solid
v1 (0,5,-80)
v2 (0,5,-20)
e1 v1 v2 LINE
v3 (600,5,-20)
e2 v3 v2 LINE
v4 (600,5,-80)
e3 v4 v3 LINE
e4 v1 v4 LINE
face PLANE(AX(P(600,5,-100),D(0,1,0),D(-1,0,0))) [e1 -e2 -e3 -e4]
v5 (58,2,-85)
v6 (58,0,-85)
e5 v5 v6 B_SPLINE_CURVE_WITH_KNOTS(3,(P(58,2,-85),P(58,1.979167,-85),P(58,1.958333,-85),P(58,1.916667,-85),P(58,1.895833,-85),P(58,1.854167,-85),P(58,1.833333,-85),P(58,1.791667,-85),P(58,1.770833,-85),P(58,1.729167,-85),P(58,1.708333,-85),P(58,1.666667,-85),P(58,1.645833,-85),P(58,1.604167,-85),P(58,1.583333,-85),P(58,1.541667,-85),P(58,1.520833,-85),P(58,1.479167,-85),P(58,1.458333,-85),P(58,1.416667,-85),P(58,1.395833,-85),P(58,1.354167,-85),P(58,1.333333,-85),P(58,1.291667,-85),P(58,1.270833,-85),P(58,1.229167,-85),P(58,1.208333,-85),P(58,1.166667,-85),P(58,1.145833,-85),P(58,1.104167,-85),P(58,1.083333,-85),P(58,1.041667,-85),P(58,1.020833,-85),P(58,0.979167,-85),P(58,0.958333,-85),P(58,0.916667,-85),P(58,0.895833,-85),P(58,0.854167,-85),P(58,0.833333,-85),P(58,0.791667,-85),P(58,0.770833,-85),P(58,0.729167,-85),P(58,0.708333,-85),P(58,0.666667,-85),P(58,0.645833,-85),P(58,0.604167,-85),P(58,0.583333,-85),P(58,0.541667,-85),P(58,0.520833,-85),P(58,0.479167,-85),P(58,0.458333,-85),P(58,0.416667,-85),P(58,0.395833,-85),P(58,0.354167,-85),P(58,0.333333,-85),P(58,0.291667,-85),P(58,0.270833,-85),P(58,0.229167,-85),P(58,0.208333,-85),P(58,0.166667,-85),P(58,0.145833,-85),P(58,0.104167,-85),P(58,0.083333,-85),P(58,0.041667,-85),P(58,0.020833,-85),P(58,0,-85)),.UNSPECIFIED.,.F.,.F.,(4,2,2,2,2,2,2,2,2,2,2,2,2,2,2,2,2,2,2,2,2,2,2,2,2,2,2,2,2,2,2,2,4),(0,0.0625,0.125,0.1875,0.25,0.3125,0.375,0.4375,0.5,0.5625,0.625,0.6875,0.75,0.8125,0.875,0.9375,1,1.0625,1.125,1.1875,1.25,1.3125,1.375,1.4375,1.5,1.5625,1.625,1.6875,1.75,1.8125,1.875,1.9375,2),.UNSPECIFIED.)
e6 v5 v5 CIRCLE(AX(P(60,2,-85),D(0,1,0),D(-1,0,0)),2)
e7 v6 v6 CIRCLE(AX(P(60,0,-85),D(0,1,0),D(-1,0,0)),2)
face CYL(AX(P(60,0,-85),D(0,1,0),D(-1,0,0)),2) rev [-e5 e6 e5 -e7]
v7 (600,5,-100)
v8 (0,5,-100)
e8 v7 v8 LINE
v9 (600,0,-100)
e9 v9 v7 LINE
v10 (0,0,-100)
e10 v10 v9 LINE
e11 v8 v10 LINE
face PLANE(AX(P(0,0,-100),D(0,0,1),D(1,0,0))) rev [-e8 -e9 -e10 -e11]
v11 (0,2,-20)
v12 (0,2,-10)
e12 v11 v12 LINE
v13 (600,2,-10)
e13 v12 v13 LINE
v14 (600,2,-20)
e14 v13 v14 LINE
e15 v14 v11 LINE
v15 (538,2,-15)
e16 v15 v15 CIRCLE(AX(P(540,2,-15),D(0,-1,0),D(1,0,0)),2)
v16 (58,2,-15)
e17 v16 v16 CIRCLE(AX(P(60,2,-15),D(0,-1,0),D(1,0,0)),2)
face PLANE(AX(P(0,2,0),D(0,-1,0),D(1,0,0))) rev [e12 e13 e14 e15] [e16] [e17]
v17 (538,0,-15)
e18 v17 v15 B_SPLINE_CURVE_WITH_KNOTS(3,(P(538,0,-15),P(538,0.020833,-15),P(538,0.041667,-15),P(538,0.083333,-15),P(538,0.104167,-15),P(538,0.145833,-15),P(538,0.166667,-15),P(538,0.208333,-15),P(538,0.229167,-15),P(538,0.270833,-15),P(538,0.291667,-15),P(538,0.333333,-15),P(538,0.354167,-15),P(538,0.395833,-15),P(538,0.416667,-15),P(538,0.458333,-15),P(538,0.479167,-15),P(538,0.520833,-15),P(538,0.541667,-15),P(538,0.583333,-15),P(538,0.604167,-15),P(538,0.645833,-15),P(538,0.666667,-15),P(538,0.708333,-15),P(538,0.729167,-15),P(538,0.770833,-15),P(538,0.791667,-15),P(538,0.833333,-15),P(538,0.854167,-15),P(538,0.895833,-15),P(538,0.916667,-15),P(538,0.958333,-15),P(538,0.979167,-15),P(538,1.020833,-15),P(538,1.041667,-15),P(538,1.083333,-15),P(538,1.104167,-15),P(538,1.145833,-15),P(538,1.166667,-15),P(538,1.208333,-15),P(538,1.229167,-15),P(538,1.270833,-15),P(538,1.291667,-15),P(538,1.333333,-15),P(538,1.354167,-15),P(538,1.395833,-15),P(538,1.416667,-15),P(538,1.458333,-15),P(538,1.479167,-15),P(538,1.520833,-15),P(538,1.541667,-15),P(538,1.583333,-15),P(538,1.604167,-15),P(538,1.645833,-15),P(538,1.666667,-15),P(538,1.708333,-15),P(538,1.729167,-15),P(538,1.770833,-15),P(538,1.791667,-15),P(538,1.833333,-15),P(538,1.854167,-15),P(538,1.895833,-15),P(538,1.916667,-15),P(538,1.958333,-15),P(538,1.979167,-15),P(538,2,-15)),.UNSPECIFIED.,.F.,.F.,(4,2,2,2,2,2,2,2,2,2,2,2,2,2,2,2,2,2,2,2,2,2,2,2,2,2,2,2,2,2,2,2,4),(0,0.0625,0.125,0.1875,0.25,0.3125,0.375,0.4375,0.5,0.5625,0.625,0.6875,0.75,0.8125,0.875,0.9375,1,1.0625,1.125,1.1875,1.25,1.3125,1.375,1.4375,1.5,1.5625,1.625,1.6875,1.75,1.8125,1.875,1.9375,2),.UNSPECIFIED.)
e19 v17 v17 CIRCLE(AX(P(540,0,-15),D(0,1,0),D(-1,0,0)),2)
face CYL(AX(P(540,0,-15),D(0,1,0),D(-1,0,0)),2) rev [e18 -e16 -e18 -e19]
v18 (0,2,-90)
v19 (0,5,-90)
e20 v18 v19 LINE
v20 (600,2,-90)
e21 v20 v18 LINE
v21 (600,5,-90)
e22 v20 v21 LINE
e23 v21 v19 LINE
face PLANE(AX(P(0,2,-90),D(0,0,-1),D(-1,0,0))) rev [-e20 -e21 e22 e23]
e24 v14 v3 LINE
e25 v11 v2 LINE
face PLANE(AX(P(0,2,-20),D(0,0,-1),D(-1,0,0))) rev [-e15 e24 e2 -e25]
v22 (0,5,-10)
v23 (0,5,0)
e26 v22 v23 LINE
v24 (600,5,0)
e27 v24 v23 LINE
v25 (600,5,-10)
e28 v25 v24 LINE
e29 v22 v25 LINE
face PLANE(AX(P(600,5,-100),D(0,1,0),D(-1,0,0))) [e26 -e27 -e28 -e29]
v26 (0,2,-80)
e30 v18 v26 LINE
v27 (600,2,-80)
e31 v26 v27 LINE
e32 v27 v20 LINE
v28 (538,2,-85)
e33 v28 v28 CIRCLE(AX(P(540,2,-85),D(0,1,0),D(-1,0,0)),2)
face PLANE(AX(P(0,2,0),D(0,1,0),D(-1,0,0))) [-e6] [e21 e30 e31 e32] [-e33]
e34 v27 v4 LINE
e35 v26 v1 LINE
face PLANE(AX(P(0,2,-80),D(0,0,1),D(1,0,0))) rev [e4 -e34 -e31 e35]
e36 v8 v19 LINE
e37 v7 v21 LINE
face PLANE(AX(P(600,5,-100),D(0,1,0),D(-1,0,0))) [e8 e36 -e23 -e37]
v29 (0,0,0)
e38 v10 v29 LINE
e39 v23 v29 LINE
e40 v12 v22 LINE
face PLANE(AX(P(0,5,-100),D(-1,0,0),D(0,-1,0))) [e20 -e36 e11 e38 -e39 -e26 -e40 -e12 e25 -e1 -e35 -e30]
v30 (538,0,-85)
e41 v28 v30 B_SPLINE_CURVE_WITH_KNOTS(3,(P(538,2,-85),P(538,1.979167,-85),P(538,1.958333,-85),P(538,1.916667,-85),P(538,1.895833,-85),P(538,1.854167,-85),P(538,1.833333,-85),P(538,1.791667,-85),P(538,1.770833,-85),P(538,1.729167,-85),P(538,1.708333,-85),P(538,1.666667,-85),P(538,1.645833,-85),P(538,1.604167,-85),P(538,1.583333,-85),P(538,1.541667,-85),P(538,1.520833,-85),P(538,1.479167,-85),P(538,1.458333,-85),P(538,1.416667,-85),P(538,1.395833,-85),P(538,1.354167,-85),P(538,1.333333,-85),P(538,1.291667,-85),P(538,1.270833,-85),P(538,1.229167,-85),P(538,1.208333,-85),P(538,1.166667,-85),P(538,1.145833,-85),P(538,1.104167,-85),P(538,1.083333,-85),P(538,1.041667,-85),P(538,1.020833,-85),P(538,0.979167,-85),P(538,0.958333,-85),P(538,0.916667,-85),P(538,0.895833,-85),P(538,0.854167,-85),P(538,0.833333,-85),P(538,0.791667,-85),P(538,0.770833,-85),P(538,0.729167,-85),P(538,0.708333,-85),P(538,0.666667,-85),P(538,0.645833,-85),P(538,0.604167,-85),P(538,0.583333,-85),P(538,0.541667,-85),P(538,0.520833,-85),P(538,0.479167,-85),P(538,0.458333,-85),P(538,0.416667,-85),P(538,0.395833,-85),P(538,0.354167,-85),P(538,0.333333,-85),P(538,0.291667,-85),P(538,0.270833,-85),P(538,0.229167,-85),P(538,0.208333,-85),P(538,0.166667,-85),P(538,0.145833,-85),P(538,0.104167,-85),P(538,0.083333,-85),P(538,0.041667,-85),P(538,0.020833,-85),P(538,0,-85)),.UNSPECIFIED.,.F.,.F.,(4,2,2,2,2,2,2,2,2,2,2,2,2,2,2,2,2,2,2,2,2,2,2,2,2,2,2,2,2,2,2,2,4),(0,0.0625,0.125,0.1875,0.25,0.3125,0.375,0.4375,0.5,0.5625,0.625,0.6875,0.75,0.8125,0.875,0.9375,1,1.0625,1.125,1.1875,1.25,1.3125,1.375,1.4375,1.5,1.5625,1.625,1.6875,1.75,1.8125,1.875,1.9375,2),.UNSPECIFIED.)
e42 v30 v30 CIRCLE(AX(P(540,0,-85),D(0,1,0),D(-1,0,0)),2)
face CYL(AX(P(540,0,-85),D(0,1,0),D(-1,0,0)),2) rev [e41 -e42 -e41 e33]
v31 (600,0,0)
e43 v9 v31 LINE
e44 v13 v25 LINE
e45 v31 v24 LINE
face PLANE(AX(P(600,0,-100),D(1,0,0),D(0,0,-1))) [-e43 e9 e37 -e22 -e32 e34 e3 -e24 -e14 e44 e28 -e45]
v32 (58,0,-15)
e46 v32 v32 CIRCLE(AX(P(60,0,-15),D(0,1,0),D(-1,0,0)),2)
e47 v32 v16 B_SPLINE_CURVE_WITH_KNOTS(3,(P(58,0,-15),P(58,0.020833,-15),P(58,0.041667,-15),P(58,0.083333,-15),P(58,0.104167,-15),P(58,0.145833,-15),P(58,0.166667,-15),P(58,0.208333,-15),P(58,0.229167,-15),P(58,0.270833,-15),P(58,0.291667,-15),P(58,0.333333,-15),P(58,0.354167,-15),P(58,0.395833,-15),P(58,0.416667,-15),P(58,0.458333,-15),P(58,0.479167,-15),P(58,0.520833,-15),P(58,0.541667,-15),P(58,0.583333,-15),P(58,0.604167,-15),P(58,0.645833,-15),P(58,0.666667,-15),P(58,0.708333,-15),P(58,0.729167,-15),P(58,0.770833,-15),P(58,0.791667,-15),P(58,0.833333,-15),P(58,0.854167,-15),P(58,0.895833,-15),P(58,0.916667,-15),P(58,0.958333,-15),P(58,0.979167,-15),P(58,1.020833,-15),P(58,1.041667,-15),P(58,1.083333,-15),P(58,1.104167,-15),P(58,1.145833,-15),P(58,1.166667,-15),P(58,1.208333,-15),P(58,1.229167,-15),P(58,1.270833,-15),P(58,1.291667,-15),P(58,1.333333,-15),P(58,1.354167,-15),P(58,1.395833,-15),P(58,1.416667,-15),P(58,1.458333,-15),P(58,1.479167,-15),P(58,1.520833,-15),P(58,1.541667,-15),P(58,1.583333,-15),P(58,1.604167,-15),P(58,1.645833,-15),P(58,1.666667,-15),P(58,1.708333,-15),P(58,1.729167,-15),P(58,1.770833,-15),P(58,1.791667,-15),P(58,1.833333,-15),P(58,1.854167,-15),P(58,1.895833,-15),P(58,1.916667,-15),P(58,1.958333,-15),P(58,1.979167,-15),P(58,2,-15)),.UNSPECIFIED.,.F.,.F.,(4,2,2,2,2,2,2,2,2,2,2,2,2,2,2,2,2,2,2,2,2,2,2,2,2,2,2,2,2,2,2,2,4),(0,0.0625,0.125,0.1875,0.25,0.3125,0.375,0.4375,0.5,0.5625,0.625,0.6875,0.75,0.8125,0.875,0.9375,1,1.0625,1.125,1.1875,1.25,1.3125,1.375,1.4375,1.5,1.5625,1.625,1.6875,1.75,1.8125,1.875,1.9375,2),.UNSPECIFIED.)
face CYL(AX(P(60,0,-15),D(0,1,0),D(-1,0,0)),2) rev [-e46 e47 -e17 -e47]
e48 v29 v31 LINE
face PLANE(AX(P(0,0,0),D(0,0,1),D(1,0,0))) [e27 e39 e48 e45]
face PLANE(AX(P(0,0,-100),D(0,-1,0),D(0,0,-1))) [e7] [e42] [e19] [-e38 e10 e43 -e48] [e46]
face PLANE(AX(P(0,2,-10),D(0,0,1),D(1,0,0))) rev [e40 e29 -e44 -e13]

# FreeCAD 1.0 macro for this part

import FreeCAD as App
import Part
import Sketcher

V = App.Vector
Q = App.Units.Quantity

doc = App.newDocument("Part")
body = doc.addObject("PartDesign::Body", "Body")

sketch1 = body.newObject("Sketcher::SketchObject", "Sketch")
sketch1.AttachmentSupport = (doc.getObject("XY_Plane"), [""])
sketch1.MapMode = "FlatFace"
sketch1.addGeometry([
    Part.LineSegment(V(0, 5, 0), V(0, 0, 0)),
    Part.LineSegment(V(0, 0, 0), V(600, 0, 0)),
    Part.LineSegment(V(600, 0, 0), V(600, 5, 0)),
    Part.LineSegment(V(600, 5, 0), V(0, 5, 0)),
], False)
sketch1.addConstraint([
    Sketcher.Constraint("Coincident", 0, 2, 1, 1),
    Sketcher.Constraint("Coincident", 1, 2, 2, 1),
    Sketcher.Constraint("Coincident", 2, 2, 3, 1),
    Sketcher.Constraint("Coincident", 3, 2, 0, 1),
    Sketcher.Constraint("Vertical", 0),
    Sketcher.Constraint("Horizontal", 1),
    Sketcher.Constraint("Vertical", 2),
    Sketcher.Constraint("Horizontal", 3),
    Sketcher.Constraint("Coincident", 0, 2, -1, 1),
    Sketcher.Constraint("DistanceX", 1, 1, 1, 2, Q("600 mm")),
    Sketcher.Constraint("DistanceY", 0, 2, 0, 1, Q("5 mm")),
])
pad1 = body.newObject("PartDesign::Pad", "Pad")
pad1.Profile = sketch1
pad1.Length = 100
pad1.Reversed = True

sketch2 = body.newObject("Sketcher::SketchObject", "Sketch001")
sketch2.AttachmentSupport = (doc.getObject("XZ_Plane"), [""])
sketch2.MapMode = "FlatFace"
sketch2.AttachmentOffset = App.Placement(V(0, 0, -5), App.Rotation())
sketch2.addGeometry([
    Part.LineSegment(V(0, -90, 0), V(0, -80, 0)),
    Part.LineSegment(V(0, -80, 0), V(600, -80, 0)),
    Part.LineSegment(V(600, -80, 0), V(600, -90, 0)),
    Part.LineSegment(V(600, -90, 0), V(0, -90, 0)),
    Part.LineSegment(V(0, -20, 0), V(0, -10, 0)),
    Part.LineSegment(V(0, -10, 0), V(600, -10, 0)),
    Part.LineSegment(V(600, -10, 0), V(600, -20, 0)),
    Part.LineSegment(V(600, -20, 0), V(0, -20, 0)),
], False)
sketch2.addConstraint([
    Sketcher.Constraint("Coincident", 0, 2, 1, 1),
    Sketcher.Constraint("Coincident", 1, 2, 2, 1),
    Sketcher.Constraint("Coincident", 2, 2, 3, 1),
    Sketcher.Constraint("Coincident", 3, 2, 0, 1),
    Sketcher.Constraint("Coincident", 4, 2, 5, 1),
    Sketcher.Constraint("Coincident", 5, 2, 6, 1),
    Sketcher.Constraint("Coincident", 6, 2, 7, 1),
    Sketcher.Constraint("Coincident", 7, 2, 4, 1),
    Sketcher.Constraint("Vertical", 0),
    Sketcher.Constraint("Horizontal", 1),
    Sketcher.Constraint("Vertical", 2),
    Sketcher.Constraint("Horizontal", 3),
    Sketcher.Constraint("Vertical", 4),
    Sketcher.Constraint("Horizontal", 5),
    Sketcher.Constraint("Vertical", 6),
    Sketcher.Constraint("Horizontal", 7),
    Sketcher.Constraint("PointOnObject", 0, 2, -2),
    Sketcher.Constraint("PointOnObject", 4, 2, -2),
    Sketcher.Constraint("Vertical", 2, 2, 5, 2),
    Sketcher.Constraint("Equal", 2, 4),
    Sketcher.Constraint("DistanceX", 1, 1, 1, 2, Q("600 mm")),
    Sketcher.Constraint("DistanceY", 0, 1, 0, 2, Q("10 mm")),
    Sketcher.Constraint("DistanceY", 0, 2, -1, 1, Q("80 mm")),
    Sketcher.Constraint("DistanceY", 4, 2, -1, 1, Q("10 mm")),
])
pocket1 = body.newObject("PartDesign::Pocket", "Pocket")
pocket1.Profile = sketch2
pocket1.Length = 3
pocket1.Reversed = True

sketch3 = body.newObject("Sketcher::SketchObject", "Sketch002")
sketch3.AttachmentSupport = (doc.getObject("XZ_Plane"), [""])
sketch3.MapMode = "FlatFace"
sketch3.AttachmentOffset = App.Placement(V(0, 0, -5), App.Rotation())
sketch3.addGeometry([
    Part.Circle(V(60, -85, 0), V(0, 0, 1), 2),
    Part.Circle(V(60, -15, 0), V(0, 0, 1), 2),
    Part.Circle(V(540, -85, 0), V(0, 0, 1), 2),
    Part.Circle(V(540, -15, 0), V(0, 0, 1), 2),
], False)
sketch3.addConstraint([
    Sketcher.Constraint("Equal", 0, 1),
    Sketcher.Constraint("Equal", 1, 2),
    Sketcher.Constraint("Equal", 2, 3),
    Sketcher.Constraint("Horizontal", 0, 3, 2, 3),
    Sketcher.Constraint("Horizontal", 1, 3, 3, 3),
    Sketcher.Constraint("Vertical", 0, 3, 1, 3),
    Sketcher.Constraint("Vertical", 2, 3, 3, 3),
    Sketcher.Constraint("Diameter", 0, Q("4 mm")),
    Sketcher.Constraint("DistanceX", -1, 1, 0, 3, Q("60 mm")),
    Sketcher.Constraint("DistanceY", 0, 3, -1, 1, Q("85 mm")),
    Sketcher.Constraint("DistanceY", 1, 3, -1, 1, Q("15 mm")),
    Sketcher.Constraint("DistanceX", -1, 1, 2, 3, Q("540 mm")),
])
pocket2 = body.newObject("PartDesign::Pocket", "Pocket001")
pocket2.Profile = sketch3
pocket2.Type = "ThroughAll"
pocket2.Reversed = True

doc.recompute()
